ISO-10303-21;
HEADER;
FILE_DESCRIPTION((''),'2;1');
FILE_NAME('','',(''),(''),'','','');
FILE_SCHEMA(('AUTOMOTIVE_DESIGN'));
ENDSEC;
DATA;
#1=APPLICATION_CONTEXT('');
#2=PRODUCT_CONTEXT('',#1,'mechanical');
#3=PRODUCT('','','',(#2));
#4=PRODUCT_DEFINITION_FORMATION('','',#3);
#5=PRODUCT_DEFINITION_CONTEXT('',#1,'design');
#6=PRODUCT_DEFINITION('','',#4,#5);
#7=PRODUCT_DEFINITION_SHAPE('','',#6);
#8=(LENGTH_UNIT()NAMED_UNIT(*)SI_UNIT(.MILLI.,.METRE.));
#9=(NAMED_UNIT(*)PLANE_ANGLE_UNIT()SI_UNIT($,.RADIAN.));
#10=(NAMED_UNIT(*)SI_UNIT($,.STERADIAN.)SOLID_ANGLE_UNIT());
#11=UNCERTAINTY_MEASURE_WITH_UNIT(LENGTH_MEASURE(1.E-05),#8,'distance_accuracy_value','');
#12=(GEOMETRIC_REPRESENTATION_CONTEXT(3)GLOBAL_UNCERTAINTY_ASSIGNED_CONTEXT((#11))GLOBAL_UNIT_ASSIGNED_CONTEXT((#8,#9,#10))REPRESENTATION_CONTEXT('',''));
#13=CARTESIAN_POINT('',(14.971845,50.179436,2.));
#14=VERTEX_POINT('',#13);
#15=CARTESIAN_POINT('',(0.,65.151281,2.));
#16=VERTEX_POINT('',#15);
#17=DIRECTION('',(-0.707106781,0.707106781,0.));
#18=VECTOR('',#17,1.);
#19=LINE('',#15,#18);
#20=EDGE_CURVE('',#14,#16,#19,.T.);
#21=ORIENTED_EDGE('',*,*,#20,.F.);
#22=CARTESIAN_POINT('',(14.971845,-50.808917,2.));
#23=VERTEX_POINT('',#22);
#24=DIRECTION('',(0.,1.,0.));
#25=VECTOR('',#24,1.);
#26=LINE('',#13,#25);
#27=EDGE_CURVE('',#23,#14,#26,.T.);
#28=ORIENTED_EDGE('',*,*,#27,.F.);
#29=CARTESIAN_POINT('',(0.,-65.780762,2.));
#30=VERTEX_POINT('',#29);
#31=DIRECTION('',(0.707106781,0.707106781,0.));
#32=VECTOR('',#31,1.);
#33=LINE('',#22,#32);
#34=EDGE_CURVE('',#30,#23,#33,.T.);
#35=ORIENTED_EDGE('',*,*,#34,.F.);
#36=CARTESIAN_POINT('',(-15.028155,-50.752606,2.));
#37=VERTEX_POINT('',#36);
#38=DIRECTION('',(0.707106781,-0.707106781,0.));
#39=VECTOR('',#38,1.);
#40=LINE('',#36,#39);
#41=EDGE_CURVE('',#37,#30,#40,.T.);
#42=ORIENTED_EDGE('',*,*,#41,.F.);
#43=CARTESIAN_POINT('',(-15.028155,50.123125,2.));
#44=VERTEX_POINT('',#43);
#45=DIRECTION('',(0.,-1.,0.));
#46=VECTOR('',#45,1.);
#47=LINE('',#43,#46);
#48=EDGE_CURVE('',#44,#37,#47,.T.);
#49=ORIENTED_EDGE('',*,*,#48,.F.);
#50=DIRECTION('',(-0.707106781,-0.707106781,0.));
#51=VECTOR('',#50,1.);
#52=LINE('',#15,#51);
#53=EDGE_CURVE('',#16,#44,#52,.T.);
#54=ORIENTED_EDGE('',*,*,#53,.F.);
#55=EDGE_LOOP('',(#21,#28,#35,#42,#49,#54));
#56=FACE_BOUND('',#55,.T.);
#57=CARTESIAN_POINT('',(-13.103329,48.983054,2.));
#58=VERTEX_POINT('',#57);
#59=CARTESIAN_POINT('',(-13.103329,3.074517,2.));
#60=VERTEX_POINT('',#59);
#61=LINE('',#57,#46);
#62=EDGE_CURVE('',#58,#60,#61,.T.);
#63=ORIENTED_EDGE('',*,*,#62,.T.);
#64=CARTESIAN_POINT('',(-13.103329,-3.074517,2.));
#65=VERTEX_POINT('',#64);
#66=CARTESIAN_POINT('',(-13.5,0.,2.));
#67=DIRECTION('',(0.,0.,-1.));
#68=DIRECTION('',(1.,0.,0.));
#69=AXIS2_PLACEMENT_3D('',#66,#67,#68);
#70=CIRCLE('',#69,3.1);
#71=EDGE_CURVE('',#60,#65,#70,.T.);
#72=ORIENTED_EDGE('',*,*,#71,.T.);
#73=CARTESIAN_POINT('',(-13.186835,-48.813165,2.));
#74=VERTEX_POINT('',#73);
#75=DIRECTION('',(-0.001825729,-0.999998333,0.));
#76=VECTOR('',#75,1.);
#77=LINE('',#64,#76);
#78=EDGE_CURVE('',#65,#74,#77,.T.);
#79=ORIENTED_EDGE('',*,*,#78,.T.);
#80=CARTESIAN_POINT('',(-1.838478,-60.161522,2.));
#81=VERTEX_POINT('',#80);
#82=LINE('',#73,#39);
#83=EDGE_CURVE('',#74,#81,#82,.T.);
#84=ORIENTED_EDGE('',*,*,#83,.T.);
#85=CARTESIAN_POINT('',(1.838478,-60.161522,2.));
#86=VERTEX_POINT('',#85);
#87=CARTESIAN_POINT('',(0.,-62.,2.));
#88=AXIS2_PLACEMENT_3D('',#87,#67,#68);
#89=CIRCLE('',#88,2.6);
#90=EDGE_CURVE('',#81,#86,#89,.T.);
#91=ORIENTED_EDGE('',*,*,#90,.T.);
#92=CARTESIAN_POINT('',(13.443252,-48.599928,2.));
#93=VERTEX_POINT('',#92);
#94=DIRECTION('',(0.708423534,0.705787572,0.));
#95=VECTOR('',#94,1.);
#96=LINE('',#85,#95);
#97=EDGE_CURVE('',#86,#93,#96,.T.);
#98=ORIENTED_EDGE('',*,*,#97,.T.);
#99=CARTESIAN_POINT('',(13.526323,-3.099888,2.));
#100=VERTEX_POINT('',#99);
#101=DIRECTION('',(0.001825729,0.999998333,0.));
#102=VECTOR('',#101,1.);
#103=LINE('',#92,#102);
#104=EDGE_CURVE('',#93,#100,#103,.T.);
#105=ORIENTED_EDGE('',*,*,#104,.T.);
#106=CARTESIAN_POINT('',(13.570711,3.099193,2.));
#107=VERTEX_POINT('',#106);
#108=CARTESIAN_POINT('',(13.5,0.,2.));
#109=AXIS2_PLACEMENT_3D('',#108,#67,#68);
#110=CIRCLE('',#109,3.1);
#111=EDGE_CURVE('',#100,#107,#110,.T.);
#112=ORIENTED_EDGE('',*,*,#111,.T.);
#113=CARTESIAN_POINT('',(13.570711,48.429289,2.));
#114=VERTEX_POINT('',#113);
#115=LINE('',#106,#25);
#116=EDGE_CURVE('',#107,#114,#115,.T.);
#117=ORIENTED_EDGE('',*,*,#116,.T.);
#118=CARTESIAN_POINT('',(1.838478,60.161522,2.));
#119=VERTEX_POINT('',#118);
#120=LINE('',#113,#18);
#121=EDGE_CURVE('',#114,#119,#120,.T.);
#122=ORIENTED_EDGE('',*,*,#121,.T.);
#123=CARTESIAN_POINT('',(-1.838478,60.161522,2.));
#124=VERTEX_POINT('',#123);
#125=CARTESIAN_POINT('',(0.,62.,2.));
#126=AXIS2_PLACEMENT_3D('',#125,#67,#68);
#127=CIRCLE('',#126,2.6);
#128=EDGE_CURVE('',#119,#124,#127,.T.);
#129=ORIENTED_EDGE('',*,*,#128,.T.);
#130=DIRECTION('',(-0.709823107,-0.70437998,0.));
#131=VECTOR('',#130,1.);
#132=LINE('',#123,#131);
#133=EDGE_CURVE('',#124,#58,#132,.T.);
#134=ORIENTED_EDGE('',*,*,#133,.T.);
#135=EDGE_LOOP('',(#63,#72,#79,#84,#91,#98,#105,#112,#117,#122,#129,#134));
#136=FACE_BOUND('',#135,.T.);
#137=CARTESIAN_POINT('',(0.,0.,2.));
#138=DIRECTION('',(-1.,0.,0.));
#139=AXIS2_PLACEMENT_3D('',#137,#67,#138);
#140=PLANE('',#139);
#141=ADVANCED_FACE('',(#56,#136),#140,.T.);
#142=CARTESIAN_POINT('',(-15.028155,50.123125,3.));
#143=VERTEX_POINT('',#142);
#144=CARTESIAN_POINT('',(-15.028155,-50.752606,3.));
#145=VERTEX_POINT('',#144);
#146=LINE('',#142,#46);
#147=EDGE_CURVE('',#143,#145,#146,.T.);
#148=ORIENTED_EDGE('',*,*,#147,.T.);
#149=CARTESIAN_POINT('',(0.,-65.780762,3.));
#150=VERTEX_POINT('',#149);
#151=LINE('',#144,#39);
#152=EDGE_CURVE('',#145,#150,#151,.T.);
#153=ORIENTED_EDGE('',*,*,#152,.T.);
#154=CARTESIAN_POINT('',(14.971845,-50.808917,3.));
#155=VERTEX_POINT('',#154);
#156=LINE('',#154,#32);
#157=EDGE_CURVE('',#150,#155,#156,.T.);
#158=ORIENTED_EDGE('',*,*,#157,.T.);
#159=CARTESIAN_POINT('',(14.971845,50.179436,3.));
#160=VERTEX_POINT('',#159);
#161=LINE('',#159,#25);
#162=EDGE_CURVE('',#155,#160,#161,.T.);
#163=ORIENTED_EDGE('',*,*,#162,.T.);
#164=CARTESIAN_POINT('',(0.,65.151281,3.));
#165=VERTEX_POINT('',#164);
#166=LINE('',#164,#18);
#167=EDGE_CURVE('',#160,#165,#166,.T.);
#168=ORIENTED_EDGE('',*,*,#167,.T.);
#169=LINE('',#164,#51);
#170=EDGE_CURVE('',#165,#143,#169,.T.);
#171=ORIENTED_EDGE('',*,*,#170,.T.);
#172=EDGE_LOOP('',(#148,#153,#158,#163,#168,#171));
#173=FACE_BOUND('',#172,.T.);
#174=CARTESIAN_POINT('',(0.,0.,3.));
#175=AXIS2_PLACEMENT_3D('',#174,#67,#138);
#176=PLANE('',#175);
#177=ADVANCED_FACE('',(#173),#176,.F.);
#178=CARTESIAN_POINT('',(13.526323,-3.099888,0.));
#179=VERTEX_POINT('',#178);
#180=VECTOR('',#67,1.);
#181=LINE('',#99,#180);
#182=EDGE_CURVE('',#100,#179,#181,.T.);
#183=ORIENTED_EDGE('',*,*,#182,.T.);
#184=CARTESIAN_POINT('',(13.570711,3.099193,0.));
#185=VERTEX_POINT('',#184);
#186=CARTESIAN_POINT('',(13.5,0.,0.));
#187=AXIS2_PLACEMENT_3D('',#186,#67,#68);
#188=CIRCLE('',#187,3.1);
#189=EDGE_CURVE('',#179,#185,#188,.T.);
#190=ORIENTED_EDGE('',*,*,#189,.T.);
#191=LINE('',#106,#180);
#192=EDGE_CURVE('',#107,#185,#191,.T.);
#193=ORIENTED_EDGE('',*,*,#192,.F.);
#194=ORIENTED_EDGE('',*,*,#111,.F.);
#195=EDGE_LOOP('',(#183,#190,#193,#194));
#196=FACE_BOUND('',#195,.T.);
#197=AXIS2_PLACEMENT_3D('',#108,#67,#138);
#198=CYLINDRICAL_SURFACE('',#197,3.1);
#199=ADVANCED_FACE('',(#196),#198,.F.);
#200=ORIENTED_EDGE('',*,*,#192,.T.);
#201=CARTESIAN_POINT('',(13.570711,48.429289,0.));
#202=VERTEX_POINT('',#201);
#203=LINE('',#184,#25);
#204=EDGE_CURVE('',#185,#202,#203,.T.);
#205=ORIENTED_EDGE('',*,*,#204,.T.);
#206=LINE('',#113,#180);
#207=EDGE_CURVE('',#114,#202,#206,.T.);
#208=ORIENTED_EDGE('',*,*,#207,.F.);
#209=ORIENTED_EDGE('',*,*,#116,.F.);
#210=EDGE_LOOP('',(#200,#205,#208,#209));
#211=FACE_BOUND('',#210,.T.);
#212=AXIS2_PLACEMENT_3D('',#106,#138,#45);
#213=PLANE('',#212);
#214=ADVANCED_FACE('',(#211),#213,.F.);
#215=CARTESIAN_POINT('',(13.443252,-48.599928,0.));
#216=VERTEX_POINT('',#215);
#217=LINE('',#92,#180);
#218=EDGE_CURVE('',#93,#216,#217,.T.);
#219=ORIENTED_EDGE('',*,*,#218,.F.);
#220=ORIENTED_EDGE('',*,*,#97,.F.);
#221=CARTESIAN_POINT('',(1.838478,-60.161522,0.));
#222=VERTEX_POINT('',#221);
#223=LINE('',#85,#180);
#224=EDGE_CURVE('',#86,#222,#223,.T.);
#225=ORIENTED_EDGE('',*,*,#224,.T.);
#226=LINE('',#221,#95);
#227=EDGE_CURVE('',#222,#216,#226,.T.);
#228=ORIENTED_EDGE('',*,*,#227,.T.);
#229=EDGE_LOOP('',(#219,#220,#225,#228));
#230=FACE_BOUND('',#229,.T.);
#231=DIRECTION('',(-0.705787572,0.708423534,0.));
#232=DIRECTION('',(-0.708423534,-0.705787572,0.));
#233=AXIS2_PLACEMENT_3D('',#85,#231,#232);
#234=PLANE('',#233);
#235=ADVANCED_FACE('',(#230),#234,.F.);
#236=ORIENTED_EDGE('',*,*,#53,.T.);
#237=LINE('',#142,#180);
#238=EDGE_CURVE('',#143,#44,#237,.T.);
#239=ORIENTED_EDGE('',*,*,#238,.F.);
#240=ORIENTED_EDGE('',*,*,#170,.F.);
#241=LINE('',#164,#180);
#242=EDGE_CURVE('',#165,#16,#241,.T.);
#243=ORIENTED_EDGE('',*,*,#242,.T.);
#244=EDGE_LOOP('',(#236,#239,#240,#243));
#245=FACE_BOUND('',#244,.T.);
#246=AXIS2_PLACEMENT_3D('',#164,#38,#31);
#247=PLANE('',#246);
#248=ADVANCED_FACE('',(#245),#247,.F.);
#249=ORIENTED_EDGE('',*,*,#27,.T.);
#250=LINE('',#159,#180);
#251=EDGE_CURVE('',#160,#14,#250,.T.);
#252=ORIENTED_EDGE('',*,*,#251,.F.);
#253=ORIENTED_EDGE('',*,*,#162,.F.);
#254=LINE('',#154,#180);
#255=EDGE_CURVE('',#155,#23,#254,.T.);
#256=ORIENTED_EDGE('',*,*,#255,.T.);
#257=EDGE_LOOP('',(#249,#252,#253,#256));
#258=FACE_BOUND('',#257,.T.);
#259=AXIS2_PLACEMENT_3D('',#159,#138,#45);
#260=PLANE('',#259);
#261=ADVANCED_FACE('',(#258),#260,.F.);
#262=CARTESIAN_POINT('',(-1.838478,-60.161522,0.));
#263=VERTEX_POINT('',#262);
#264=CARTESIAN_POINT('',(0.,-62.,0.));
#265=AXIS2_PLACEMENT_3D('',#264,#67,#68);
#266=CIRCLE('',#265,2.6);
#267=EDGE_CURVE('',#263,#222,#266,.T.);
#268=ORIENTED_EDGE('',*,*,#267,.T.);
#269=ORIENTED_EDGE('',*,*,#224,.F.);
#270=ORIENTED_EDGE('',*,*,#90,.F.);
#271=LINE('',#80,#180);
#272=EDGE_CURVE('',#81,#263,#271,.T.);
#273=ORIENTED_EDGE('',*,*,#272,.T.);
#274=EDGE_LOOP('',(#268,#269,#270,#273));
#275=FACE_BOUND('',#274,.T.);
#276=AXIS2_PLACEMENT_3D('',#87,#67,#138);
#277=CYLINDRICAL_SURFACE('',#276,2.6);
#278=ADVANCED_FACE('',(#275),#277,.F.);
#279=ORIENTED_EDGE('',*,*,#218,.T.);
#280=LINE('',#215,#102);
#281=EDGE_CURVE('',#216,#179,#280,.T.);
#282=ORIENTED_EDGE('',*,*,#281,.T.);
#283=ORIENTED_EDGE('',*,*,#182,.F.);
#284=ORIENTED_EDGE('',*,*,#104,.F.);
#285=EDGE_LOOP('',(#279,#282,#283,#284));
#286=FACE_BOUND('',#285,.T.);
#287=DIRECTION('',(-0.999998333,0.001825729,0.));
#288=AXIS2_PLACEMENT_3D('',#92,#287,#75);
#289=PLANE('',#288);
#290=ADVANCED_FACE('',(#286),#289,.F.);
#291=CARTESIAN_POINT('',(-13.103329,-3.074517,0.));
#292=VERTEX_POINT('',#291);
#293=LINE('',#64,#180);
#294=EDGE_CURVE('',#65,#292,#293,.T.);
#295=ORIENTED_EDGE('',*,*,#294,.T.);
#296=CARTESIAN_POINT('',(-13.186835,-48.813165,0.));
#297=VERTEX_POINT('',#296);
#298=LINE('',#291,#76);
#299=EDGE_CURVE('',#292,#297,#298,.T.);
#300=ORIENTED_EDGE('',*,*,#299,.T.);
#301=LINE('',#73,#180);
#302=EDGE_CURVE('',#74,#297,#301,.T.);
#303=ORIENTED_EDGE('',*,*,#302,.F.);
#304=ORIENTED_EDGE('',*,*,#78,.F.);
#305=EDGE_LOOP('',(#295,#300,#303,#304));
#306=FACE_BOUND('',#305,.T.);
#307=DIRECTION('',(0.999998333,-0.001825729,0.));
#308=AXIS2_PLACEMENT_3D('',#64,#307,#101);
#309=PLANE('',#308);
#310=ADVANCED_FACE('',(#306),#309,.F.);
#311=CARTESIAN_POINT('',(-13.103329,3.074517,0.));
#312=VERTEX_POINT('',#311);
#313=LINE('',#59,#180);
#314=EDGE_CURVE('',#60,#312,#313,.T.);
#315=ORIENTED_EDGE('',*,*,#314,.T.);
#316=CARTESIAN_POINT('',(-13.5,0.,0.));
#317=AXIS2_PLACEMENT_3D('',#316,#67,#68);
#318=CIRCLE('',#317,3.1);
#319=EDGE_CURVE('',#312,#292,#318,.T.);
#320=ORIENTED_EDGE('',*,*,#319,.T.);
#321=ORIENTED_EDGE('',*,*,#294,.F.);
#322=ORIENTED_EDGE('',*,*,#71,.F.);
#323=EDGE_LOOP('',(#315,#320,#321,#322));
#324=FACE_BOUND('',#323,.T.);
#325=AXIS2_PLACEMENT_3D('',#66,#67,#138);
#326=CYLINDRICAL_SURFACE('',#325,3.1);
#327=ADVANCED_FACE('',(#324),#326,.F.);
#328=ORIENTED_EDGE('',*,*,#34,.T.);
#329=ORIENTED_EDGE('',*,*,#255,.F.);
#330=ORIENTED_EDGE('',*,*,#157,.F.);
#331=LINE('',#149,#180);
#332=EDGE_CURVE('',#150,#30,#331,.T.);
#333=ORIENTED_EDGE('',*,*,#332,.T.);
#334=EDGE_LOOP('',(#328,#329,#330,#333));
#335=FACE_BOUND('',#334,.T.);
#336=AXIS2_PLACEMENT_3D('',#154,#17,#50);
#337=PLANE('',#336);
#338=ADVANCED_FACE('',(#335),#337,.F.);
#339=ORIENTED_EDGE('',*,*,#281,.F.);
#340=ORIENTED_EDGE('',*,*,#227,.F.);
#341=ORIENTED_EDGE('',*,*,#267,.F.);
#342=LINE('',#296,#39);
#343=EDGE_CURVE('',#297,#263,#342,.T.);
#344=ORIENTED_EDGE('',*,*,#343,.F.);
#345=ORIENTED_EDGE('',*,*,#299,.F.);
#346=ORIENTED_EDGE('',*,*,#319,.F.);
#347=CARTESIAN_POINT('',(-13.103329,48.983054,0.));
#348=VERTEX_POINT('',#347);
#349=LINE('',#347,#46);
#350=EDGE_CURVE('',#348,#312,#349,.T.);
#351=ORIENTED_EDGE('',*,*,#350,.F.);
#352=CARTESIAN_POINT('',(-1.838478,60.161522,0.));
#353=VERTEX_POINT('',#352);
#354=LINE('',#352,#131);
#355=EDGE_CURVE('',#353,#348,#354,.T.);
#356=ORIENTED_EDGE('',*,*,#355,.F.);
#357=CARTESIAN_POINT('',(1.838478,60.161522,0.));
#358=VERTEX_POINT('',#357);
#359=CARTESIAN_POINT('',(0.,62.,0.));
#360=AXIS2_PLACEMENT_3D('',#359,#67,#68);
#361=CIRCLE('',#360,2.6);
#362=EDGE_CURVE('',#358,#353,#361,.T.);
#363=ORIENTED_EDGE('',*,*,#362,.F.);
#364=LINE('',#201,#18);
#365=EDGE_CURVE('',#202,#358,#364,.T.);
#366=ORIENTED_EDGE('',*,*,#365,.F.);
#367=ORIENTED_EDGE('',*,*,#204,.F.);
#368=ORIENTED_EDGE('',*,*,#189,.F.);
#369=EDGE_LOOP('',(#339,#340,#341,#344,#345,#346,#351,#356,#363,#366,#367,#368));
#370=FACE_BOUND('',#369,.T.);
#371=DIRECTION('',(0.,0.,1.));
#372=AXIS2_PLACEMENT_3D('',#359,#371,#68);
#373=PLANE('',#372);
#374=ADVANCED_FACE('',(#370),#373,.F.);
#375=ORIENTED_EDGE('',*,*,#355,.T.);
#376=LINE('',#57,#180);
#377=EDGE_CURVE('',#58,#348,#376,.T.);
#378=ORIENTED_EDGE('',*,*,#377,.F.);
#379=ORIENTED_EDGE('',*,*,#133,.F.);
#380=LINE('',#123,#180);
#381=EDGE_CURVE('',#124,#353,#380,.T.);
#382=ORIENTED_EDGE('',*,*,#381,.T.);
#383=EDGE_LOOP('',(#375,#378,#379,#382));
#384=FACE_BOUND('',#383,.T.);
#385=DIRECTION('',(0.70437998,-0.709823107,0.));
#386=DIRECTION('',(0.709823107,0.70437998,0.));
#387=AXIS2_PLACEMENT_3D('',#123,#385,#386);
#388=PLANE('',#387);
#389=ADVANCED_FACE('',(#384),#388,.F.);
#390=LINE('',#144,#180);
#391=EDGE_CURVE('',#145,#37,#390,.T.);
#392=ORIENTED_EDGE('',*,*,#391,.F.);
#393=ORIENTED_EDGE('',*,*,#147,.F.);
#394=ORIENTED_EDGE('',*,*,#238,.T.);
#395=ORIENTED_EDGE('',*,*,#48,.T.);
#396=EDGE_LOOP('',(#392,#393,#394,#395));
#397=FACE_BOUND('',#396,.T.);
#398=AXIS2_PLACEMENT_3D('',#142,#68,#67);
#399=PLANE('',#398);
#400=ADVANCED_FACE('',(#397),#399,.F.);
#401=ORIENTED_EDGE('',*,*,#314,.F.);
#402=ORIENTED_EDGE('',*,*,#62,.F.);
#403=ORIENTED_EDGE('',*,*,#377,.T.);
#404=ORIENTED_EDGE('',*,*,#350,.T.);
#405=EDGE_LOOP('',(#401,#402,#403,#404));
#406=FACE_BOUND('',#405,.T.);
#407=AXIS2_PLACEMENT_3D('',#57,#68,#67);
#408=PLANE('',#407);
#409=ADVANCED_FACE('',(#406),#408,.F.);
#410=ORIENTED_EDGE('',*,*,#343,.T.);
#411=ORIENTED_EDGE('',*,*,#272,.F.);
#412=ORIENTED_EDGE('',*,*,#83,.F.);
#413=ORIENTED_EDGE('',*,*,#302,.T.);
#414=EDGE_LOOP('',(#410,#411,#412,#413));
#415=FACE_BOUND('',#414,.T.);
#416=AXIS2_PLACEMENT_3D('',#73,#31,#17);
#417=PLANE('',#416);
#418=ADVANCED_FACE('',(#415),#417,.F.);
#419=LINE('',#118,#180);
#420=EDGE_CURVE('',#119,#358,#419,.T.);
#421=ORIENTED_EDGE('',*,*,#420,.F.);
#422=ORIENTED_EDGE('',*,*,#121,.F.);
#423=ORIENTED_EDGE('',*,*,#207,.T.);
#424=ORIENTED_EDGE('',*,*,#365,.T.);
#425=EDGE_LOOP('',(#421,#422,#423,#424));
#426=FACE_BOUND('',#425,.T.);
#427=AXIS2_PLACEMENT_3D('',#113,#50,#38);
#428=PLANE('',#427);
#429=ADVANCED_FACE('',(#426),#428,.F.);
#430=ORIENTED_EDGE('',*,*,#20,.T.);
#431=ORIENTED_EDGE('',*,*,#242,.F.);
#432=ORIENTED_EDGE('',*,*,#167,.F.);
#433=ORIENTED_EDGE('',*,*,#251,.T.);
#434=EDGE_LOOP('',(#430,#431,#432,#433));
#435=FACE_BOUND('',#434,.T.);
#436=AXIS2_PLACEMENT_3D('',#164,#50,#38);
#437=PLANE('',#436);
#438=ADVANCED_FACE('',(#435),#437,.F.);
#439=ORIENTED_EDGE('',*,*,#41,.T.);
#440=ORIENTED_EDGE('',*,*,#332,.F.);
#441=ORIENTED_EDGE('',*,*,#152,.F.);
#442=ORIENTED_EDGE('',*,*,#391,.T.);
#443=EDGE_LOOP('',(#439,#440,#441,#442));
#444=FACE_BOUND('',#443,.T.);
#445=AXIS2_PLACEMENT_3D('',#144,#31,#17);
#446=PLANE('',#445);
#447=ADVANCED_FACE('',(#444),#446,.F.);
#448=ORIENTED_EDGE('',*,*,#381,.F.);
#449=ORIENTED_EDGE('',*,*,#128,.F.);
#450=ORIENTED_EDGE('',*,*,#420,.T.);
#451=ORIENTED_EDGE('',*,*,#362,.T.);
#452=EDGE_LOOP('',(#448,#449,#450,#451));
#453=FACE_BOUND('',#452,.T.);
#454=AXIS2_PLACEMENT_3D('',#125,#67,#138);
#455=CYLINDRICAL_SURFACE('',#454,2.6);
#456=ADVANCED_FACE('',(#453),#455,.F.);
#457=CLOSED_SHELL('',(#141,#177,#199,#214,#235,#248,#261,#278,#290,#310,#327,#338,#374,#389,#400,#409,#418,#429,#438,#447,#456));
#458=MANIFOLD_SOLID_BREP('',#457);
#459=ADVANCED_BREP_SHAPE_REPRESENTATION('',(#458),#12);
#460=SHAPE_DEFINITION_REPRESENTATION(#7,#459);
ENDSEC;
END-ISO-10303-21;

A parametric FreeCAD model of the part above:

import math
import FreeCAD as App
import Part
import Sketcher
from FreeCAD import Vector
Q = App.Units.Quantity

doc = App.newDocument("Part")
body = doc.addObject("PartDesign::Body", "Body")

# Sketch on XY plane
sketch1 = body.newObject("Sketcher::SketchObject", "Sketch")
sketch1.AttachmentSupport = (doc.getObject("XY_Plane"), [""])
sketch1.MapMode = "FlatFace"
sketch1.addGeometry([
    Part.LineSegment(Vector(-13.2, -48.8, 0), Vector(-1.8, -60.2, 0)),  # 0
    Part.ArcOfCircle(Part.Circle(Vector(0, -62, 0), Vector(0, 0, 1), 2.6), math.radians(45), math.radians(135)),  # 1
    Part.LineSegment(Vector(1.8, -60.2, 0), Vector(13.4, -48.6, 0)),  # 2
    Part.LineSegment(Vector(13.4, -48.6, 0), Vector(13.5, -3.1, 0)),  # 3
    Part.ArcOfCircle(Part.Circle(Vector(13.5, 0, 0), Vector(0, 0, 1), 3.1), math.radians(89), math.radians(270)),  # 4
    Part.LineSegment(Vector(13.6, 3.1, 0), Vector(13.6, 48.4, 0)),  # 5
    Part.LineSegment(Vector(13.6, 48.4, 0), Vector(1.8, 60.2, 0)),  # 6
    Part.ArcOfCircle(Part.Circle(Vector(0, 62, 0), Vector(0, 0, 1), 2.6), math.radians(-135), math.radians(-45)),  # 7
    Part.LineSegment(Vector(-1.8, 60.2, 0), Vector(-13.1, 49, 0)),  # 8
    Part.LineSegment(Vector(-13.1, 49, 0), Vector(-13.1, 3.1, 0)),  # 9
    Part.ArcOfCircle(Part.Circle(Vector(-13.5, 0, 0), Vector(0, 0, 1), 3.1), math.radians(-83), math.radians(83)),  # 10
    Part.LineSegment(Vector(-13.1, -3.1, 0), Vector(-13.2, -48.8, 0)),  # 11
], False)
sketch1.addConstraint([
    Sketcher.Constraint("Coincident", 0, 2, 1, 2),
    Sketcher.Constraint("Coincident", 1, 1, 2, 1),
    Sketcher.Constraint("Coincident", 2, 2, 3, 1),
    Sketcher.Constraint("Coincident", 3, 2, 4, 2),
    Sketcher.Constraint("Coincident", 4, 1, 5, 1),
    Sketcher.Constraint("Coincident", 5, 2, 6, 1),
    Sketcher.Constraint("Coincident", 6, 2, 7, 2),
    Sketcher.Constraint("Coincident", 7, 1, 8, 1),
    Sketcher.Constraint("Coincident", 8, 2, 9, 1),
    Sketcher.Constraint("Coincident", 9, 2, 10, 2),
    Sketcher.Constraint("Coincident", 10, 1, 11, 1),
    Sketcher.Constraint("Coincident", 11, 2, 0, 1),
    Sketcher.Constraint("Vertical", 5),
    Sketcher.Constraint("Vertical", 9),
    Sketcher.Constraint("Equal", 1, 7),
    Sketcher.Constraint("Equal", 4, 10),
    Sketcher.Constraint("Symmetric", 1, 3, 7, 3, -1, 1),
    Sketcher.Constraint("Symmetric", 4, 3, 10, 3, -1, 1),
    Sketcher.Constraint("Symmetric", 0, 2, 1, 1, -2),
    Sketcher.Constraint("Symmetric", 9, 2, 10, 1, -1),
    Sketcher.Constraint("Parallel", 0, 6),
    Sketcher.Constraint("Parallel", 3, 11),
    Sketcher.Constraint("Horizontal", 6, 2, 7, 1),
    Sketcher.Constraint("Vertical", 1, 1, 6, 2),
    Sketcher.Constraint("Radius", 1, Q("2.6 mm")),
    Sketcher.Constraint("Radius", 4, Q("3.1 mm")),
    Sketcher.Constraint("Angle", 0, Q("-45 deg")),
    Sketcher.Constraint("DistanceY", 1, 3, -1, 1, Q("62 mm")),
    Sketcher.Constraint("DistanceX", 10, 3, 4, 3, Q("27 mm")),
    Sketcher.Constraint("Distance", 0, Q("16.049001 mm")),
    Sketcher.Constraint("DistanceX", 0, 2, 3, 2, Q("15.364801 mm")),
    Sketcher.Constraint("Distance", 8, Q("15.869941 mm")),
    Sketcher.Constraint("DistanceY", 5, 1, 5, 2, Q("45.330096 mm")),
    Sketcher.Constraint("DistanceY", 9, 2, 9, 1, Q("45.908537 mm")),
    Sketcher.Constraint("DistanceX", -1, 1, 4, 1, Q("13.570711 mm")),
    Sketcher.Constraint("DistanceY", 2, 2, 3, 2, Q("45.500039 mm")),
])
pad1 = body.newObject("PartDesign::Pad", "Pad")
pad1.Profile = sketch1
pad1.Length = 2

# Sketch on XY plane
sketch2 = body.newObject("Sketcher::SketchObject", "Sketch001")
sketch2.AttachmentSupport = (doc.getObject("XY_Plane"), [""])
sketch2.MapMode = "FlatFace"
sketch2.AttachmentOffset = App.Placement(Vector(0, 0, 2), App.Rotation())
sketch2.addGeometry([
    Part.LineSegment(Vector(0, 65, 0), Vector(-15, 50, 0)),  # 0
    Part.LineSegment(Vector(-15, 50, 0), Vector(-15, -51, 0)),  # 1
    Part.LineSegment(Vector(-15, -51, 0), Vector(0, -66, 0)),  # 2
    Part.LineSegment(Vector(0, -66, 0), Vector(15, -51, 0)),  # 3
    Part.LineSegment(Vector(15, -51, 0), Vector(15, 50, 0)),  # 4
    Part.LineSegment(Vector(15, 50, 0), Vector(0, 65, 0)),  # 5
], False)
sketch2.addConstraint([
    Sketcher.Constraint("Coincident", 0, 2, 1, 1),
    Sketcher.Constraint("Coincident", 1, 2, 2, 1),
    Sketcher.Constraint("Coincident", 2, 2, 3, 1),
    Sketcher.Constraint("Coincident", 3, 2, 4, 1),
    Sketcher.Constraint("Coincident", 4, 2, 5, 1),
    Sketcher.Constraint("Coincident", 5, 2, 0, 1),
    Sketcher.Constraint("Vertical", 1),
    Sketcher.Constraint("Vertical", 4),
    Sketcher.Constraint("PointOnObject", 2, 2, -2),
    Sketcher.Constraint("PointOnObject", 5, 2, -2),
    Sketcher.Constraint("Perpendicular", 0, 2),
    Sketcher.Constraint("Perpendicular", 2, 3),
    Sketcher.Constraint("Perpendicular", 3, 5),
    Sketcher.Constraint("Equal", 0, 2),
    Sketcher.Constraint("DistanceX", 1, 2, 3, 2, Q("30 mm")),
    Sketcher.Constraint("DistanceY", 1, 2, 1, 1, Q("100.875732 mm")),
    Sketcher.Constraint("DistanceY", 2, 2, 4, 2, Q("115.960198 mm")),
    Sketcher.Constraint("DistanceY", 2, 2, -1, 1, Q("65.780762 mm")),
])
pad2 = body.newObject("PartDesign::Pad", "Pad001")
pad2.Profile = sketch2
pad2.Length = 1

doc.recompute()
